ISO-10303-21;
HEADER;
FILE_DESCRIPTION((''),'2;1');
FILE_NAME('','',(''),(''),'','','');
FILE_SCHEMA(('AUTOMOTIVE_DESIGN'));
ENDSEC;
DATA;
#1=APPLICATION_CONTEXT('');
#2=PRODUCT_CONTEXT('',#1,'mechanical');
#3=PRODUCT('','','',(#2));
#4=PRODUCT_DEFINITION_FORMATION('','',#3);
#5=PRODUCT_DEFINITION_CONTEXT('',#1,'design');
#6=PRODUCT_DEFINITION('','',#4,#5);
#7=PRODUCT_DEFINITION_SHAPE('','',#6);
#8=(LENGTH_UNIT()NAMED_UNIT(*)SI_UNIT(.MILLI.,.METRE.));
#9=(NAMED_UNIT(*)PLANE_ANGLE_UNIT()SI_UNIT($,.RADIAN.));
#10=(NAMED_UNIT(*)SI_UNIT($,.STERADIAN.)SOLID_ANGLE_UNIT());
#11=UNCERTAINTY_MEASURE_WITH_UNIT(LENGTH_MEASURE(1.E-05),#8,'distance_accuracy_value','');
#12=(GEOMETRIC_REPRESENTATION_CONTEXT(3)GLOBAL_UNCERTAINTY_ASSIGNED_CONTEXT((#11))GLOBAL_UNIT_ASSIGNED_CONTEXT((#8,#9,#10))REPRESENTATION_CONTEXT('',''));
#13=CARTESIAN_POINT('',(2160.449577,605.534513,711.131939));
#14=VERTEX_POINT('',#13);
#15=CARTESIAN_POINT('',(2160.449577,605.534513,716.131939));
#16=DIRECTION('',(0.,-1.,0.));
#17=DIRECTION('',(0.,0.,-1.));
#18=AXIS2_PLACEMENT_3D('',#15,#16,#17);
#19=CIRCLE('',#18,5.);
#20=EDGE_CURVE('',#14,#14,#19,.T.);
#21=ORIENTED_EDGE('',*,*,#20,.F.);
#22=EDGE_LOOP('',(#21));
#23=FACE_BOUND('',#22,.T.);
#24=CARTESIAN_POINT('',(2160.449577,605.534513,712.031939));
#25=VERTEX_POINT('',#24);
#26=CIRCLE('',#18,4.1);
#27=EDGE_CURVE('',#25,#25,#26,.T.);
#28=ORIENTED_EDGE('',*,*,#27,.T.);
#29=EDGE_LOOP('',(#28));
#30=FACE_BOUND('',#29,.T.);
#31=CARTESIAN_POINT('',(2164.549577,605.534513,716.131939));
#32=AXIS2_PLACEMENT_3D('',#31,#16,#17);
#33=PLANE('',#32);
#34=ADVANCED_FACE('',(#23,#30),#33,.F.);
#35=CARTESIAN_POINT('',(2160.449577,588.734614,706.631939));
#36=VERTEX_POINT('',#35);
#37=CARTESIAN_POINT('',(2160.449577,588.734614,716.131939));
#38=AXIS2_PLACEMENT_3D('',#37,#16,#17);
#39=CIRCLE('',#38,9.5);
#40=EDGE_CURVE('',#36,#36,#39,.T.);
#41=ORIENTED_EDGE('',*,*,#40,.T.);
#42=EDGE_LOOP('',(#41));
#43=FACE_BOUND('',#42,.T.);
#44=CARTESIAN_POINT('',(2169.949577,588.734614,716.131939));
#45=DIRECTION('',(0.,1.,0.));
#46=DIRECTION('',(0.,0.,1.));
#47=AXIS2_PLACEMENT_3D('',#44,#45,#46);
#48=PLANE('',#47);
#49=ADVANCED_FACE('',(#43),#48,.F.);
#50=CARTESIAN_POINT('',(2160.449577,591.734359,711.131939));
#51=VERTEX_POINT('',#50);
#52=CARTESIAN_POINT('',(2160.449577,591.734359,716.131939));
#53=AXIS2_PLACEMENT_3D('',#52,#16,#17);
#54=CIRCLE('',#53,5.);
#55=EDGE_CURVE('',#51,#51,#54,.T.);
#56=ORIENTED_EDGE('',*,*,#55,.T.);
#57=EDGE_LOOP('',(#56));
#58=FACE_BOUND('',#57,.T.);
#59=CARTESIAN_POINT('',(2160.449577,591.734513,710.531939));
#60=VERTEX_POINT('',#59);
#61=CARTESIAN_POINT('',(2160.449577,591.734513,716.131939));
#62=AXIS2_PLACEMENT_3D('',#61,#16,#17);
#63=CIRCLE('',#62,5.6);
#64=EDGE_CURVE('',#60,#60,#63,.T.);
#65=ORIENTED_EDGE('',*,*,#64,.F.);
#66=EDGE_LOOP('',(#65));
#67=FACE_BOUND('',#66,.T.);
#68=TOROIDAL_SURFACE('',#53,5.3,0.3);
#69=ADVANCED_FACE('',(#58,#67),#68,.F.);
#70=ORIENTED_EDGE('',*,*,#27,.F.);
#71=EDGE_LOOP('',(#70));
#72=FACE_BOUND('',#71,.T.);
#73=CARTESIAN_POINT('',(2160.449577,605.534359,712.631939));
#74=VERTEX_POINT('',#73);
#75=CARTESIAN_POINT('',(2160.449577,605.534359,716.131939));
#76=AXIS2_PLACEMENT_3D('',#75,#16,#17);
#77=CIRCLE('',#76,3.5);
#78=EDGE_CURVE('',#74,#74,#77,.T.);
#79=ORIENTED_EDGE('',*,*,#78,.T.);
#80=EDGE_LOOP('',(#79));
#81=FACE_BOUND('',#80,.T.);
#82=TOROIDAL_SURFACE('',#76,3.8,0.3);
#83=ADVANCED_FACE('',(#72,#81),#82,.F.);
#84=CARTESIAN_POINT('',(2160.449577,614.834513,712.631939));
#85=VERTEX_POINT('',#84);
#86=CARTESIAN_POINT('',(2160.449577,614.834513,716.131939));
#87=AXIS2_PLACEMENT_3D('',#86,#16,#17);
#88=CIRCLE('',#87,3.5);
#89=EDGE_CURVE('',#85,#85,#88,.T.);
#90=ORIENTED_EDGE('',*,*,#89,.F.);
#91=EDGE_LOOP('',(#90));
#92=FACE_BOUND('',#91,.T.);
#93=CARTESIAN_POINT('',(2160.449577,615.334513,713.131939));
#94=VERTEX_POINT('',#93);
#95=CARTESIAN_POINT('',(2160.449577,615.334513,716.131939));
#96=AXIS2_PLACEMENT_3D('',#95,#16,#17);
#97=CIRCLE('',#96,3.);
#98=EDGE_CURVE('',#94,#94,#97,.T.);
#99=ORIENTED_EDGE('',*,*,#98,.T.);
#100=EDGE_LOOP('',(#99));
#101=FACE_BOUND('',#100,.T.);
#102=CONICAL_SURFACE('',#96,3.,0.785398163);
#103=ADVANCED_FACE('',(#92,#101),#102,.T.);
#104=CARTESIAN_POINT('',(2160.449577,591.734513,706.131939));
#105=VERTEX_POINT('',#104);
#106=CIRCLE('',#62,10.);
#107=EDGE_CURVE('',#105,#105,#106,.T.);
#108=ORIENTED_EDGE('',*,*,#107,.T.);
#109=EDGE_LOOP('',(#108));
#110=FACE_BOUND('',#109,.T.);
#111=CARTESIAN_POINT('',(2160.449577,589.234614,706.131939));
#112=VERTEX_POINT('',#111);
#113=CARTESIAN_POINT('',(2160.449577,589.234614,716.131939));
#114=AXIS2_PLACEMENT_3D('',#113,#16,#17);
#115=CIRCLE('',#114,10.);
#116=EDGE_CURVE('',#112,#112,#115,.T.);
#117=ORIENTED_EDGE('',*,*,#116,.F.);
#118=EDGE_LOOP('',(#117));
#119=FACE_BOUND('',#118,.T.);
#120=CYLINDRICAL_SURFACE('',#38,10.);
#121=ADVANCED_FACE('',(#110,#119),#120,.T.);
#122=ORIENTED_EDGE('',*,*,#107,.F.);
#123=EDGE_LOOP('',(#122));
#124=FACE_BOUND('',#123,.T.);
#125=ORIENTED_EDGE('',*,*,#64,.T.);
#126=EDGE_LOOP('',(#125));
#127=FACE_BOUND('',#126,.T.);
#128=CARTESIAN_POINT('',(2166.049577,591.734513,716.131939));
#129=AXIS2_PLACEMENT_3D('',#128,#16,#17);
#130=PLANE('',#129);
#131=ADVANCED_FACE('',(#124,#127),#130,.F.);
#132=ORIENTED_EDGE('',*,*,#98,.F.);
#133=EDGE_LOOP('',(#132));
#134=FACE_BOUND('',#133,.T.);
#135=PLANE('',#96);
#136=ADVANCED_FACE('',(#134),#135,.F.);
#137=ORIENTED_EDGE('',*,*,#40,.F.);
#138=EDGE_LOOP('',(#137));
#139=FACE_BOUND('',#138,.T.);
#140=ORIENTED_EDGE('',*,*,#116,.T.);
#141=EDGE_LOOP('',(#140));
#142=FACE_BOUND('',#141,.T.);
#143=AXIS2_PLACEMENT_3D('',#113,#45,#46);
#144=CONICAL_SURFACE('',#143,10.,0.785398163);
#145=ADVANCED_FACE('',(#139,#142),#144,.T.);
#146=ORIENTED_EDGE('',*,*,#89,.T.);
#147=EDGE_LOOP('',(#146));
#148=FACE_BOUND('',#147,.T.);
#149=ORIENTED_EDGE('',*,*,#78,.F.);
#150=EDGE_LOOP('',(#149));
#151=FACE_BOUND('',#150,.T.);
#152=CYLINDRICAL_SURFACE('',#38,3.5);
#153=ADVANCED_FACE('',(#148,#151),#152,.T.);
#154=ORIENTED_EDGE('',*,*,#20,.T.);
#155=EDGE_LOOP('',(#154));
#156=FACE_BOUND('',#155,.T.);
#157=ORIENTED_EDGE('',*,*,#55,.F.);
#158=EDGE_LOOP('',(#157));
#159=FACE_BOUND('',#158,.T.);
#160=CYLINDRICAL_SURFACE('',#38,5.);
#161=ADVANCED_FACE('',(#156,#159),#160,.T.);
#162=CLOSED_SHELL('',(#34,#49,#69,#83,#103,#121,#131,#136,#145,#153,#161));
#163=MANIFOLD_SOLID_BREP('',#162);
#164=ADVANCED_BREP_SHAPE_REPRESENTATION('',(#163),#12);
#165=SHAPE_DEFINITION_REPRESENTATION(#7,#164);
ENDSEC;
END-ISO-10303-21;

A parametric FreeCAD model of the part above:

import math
import FreeCAD as App
import Part
import Sketcher

V = App.Vector
Q = App.Units.Quantity

doc = App.newDocument("Part")
body = doc.addObject("PartDesign::Body", "Body")

# Sketch on XY plane
sketch1 = doc.addObject("Sketcher::SketchObject", "Sketch")
body.addObject(sketch1)
sketch1.AttachmentSupport = (doc.XY_Plane, [""])
sketch1.MapMode = "FlatFace"
sketch1.AttachmentOffset = App.Placement(V(0, 0, 716.131939), App.Rotation())
sketch1.addGeometry([
    Part.LineSegment(V(2169.95, 588.73, 0), V(2160.45, 588.73, 0)),  # 0
    Part.LineSegment(V(2160.45, 588.73, 0), V(2160.45, 615.33, 0)),  # 1
    Part.LineSegment(V(2160.45, 615.33, 0), V(2163.45, 615.33, 0)),  # 2
    Part.LineSegment(V(2163.45, 615.33, 0), V(2163.95, 614.83, 0)),  # 3
    Part.LineSegment(V(2163.95, 614.83, 0), V(2163.95, 605.53, 0)),  # 4
    Part.ArcOfCircle(Part.Circle(V(2164.25, 605.53, 0), V(0, 0, 1), 0.3), math.radians(180), math.radians(360)),  # 5
    Part.LineSegment(V(2164.55, 605.53, 0), V(2165.45, 605.53, 0)),  # 6
    Part.LineSegment(V(2165.45, 605.53, 0), V(2165.45, 591.73, 0)),  # 7
    Part.ArcOfCircle(Part.Circle(V(2165.75, 591.73, 0), V(0, 0, 1), 0.3), math.radians(180), math.radians(360)),  # 8
    Part.LineSegment(V(2166.05, 591.73, 0), V(2170.45, 591.73, 0)),  # 9
    Part.LineSegment(V(2170.45, 591.73, 0), V(2170.45, 589.23, 0)),  # 10
    Part.LineSegment(V(2170.45, 589.23, 0), V(2169.95, 588.73, 0)),  # 11
], False)
sketch1.addGeometry(Part.LineSegment(V(2160.45, 588.73, 0), V(2160.45, 615.33, 0)), True)  # axis
sketch1.addConstraint([
    Sketcher.Constraint("Coincident", 0, 2, 1, 1),
    Sketcher.Constraint("Coincident", 1, 2, 2, 1),
    Sketcher.Constraint("Coincident", 2, 2, 3, 1),
    Sketcher.Constraint("Coincident", 3, 2, 4, 1),
    Sketcher.Constraint("Tangent", 4, 2, 5, 1),
    Sketcher.Constraint("Coincident", 5, 2, 6, 1),
    Sketcher.Constraint("Coincident", 6, 2, 7, 1),
    Sketcher.Constraint("Tangent", 7, 2, 8, 1),
    Sketcher.Constraint("Coincident", 8, 2, 9, 1),
    Sketcher.Constraint("Coincident", 9, 2, 10, 1),
    Sketcher.Constraint("Coincident", 10, 2, 11, 1),
    Sketcher.Constraint("Coincident", 11, 2, 0, 1),
    Sketcher.Constraint("Horizontal", 0),
    Sketcher.Constraint("Vertical", 1),
    Sketcher.Constraint("Horizontal", 2),
    Sketcher.Constraint("Vertical", 4),
    Sketcher.Constraint("Horizontal", 6),
    Sketcher.Constraint("Vertical", 7),
    Sketcher.Constraint("Horizontal", 9),
    Sketcher.Constraint("Vertical", 10),
    Sketcher.Constraint("Vertical", 12),
    Sketcher.Constraint("Coincident", 12, 1, 0, 2),
    Sketcher.Constraint("Equal", 5, 8),
    Sketcher.Constraint("Perpendicular", 3, 11),
    Sketcher.Constraint("Horizontal", 2, 2, 12, 2),
    Sketcher.Constraint("Equal", 3, 11),
    Sketcher.Constraint("Radius", 5, 0.3),
    Sketcher.Constraint("DistanceX", 2, 1, 2, 2, 3.0),
    Sketcher.Constraint("Angle", 3, Q("-45 deg")),
    Sketcher.Constraint("DistanceX", 0, 2, 0, 1, 9.5),
    Sketcher.Constraint("DistanceX", 6, 1, 6, 2, 0.9),
    Sketcher.Constraint("DistanceX", 2, 2, 6, 2, 2.0),
    Sketcher.Constraint("DistanceY", 8, 3, 5, 3, 13.8),
    Sketcher.Constraint("DistanceY", 5, 2, 3, 2, 9.3),
    Sketcher.Constraint("DistanceY", 8, 2, 6, 2, 13.8),
    Sketcher.Constraint("DistanceY", 1, 1, 1, 2, 26.599899),
    Sketcher.Constraint("DistanceY", 4, 2, 4, 1, 9.300154),
    Sketcher.Constraint("DistanceY", -1, 1, 5, 3, 605.534359),
    Sketcher.Constraint("DistanceX", -1, 1, 5, 3, 2164.249577),
])
revolution = doc.addObject("PartDesign::Revolution", "Revolution")
body.addObject(revolution)
revolution.Profile = sketch1
revolution.ReferenceAxis = (sketch1, ["Axis0"])
revolution.Angle = 360

doc.recompute()
